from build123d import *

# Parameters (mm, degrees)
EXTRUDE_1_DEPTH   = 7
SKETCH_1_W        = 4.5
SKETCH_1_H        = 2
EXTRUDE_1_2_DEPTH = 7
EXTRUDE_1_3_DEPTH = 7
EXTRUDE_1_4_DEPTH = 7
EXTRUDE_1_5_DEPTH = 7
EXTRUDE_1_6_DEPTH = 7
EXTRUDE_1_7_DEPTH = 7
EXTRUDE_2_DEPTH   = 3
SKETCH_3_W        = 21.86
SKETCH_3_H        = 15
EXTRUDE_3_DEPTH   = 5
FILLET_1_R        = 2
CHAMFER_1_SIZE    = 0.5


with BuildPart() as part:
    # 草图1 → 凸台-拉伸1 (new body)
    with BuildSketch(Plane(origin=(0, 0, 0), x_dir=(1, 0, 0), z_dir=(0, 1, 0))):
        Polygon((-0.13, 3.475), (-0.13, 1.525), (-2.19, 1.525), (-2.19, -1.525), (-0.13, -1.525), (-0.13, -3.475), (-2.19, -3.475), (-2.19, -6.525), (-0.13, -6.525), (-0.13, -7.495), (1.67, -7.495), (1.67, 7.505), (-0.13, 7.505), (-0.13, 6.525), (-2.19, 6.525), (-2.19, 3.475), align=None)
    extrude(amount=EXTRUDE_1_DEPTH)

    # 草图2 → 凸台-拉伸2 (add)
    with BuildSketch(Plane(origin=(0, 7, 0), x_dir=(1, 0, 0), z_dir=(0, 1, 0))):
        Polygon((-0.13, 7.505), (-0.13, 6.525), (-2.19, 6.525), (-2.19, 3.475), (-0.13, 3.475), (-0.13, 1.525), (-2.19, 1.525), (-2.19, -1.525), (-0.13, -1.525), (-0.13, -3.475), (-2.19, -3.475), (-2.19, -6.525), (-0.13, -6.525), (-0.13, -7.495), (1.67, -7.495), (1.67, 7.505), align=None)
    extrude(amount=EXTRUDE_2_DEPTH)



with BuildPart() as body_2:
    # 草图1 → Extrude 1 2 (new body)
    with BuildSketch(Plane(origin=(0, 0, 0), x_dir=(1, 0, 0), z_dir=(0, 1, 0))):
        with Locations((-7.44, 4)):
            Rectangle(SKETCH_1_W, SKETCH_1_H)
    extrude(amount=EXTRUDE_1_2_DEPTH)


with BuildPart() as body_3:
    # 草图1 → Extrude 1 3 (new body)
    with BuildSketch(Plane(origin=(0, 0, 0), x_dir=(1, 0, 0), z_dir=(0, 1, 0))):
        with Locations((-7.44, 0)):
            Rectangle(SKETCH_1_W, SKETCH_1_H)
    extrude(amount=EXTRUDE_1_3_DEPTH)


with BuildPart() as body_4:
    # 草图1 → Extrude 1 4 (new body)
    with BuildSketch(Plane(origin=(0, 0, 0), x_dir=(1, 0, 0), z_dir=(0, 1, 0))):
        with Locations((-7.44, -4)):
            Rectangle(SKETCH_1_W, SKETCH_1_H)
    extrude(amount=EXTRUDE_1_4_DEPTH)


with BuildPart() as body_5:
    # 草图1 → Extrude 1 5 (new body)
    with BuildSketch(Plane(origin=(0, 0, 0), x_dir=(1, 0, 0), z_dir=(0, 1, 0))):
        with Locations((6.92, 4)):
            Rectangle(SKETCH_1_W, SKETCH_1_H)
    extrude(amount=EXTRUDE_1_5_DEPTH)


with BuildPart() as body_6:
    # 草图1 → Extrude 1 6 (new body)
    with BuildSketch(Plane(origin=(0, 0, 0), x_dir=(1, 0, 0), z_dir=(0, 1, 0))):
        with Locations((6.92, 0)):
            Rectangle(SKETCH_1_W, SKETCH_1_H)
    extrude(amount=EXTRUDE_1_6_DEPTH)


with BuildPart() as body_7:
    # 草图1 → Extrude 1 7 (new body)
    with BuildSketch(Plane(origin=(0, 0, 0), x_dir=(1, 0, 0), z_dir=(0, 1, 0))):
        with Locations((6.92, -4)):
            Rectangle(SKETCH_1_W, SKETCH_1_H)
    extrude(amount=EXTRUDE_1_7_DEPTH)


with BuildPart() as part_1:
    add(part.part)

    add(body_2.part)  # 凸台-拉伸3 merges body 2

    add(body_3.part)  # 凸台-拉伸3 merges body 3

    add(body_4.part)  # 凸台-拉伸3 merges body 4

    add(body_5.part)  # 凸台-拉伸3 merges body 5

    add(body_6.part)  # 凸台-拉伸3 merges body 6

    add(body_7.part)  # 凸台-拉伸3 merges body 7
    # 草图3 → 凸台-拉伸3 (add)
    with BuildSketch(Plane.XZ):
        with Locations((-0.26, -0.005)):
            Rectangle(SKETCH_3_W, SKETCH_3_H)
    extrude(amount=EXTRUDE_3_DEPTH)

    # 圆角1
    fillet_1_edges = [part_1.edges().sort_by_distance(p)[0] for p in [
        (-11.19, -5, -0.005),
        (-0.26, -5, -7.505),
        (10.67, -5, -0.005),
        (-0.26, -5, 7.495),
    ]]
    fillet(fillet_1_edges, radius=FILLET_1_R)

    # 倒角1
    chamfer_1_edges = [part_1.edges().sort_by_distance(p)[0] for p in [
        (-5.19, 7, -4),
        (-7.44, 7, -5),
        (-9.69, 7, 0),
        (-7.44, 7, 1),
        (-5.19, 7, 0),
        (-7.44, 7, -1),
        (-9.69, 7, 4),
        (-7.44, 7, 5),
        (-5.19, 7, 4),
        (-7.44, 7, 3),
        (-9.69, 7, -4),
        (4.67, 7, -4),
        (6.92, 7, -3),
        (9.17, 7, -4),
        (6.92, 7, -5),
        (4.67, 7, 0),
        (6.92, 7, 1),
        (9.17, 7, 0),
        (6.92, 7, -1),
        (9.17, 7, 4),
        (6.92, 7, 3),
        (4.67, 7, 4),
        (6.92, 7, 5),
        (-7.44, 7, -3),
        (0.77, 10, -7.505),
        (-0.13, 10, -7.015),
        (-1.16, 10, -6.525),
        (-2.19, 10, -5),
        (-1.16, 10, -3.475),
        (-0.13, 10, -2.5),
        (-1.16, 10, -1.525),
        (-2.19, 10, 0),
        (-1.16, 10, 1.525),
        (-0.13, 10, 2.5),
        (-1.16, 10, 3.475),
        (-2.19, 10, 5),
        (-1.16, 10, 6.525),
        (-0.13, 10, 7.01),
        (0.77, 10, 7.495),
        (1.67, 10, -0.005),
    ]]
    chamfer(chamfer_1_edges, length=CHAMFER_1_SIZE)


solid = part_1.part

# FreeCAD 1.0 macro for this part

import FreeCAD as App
import Part
import Sketcher
from FreeCAD import Vector
Q = App.Units.Quantity


def edges_at(feature, points):
    """Names of the edges that pass closest to the given points."""
    edges = feature.Shape.Edges
    near = lambda p: min(range(len(edges)), key=lambda i: edges[i].distToShape(Part.Vertex(*p))[0])
    return sorted({f"Edge{near(p) + 1}" for p in points})


def add_polygon(sketch, points):
    """Adds a closed chain of lines whose ends are joined by coincident constraints."""
    first, n = sketch.GeometryCount, len(points)
    for a, b in zip(points, points[1:] + points[:1]):
        sketch.addGeometry(Part.LineSegment(App.Vector(*a, 0), App.Vector(*b, 0)), False)
    for i in range(n):
        sketch.addConstraint(Sketcher.Constraint("Coincident", first + i, 2, first + (i + 1) % n, 1))

doc = App.newDocument("Part")
params = doc.addObject("Spreadsheet::Sheet", "Params")
for row, (alias, value) in enumerate([
    ("sketch1_height", "15 mm"),
    ("sketch1_width", "1.8 mm"),
    ("sketch1_width2", "2.06 mm"),
    ("sketch1_height2", "1.95 mm"),
    ("sketch1_height3", "0.97 mm"),
    ("pad1_length", "7 mm"),
    ("sketch2_height", "15 mm"),
    ("sketch2_width", "1.8 mm"),
    ("sketch2_width2", "2.06 mm"),
    ("sketch2_height2", "0.98 mm"),
    ("sketch2_height3", "3.05 mm"),
    ("pad2_length", "3 mm"),
    ("sketch3_height", "2 mm"),
    ("sketch3_width", "4.5 mm"),
    ("pad3_length", "7 mm"),
    ("sketch4_height", "2 mm"),
    ("sketch4_width", "4.5 mm"),
    ("pad4_length", "7 mm"),
    ("sketch5_height", "2 mm"),
    ("sketch5_width", "4.5 mm"),
    ("pad5_length", "7 mm"),
    ("sketch6_height", "2 mm"),
    ("sketch6_width", "4.5 mm"),
    ("pad6_length", "7 mm"),
    ("sketch7_height", "2 mm"),
    ("sketch7_width", "4.5 mm"),
    ("pad7_length", "7 mm"),
    ("sketch8_height", "2 mm"),
    ("sketch8_width", "4.5 mm"),
    ("pad8_length", "7 mm"),
    ("sketch9_height", "15 mm"),
    ("sketch9_width", "21.86 mm"),
    ("pad9_length", "5 mm"),
    ("fillet_radius", "2 mm"),
    ("chamfer_size", "0.5 mm"),
], start=1):
    params.set(f"A{row}", alias)
    params.set(f"B{row}", "=" + value)
    params.setAlias(f"B{row}", alias)

body = doc.addObject("PartDesign::Body", "Body")

# Sketch on XZ plane
sketch1 = doc.addObject("Sketcher::SketchObject", "Sketch")
body.addObject(sketch1)
sketch1.AttachmentSupport = (doc.XZ_Plane, [""])
sketch1.MapMode = "FlatFace"
add_polygon(sketch1, [(-0.1, -3.5), (-0.1, -1.5), (-2.2, -1.5), (-2.2, 1.5), (-0.1, 1.5), (-0.1, 3.5), (-2.2, 3.5), (-2.2, 6.5), (-0.1, 6.5), (-0.1, 7.5), (1.7, 7.5), (1.7, -7.5), (-0.1, -7.5), (-0.1, -6.5), (-2.2, -6.5), (-2.2, -3.5)])  # lines 0-15
sketch1.addConstraint([
    Sketcher.Constraint("Vertical", 0),
    Sketcher.Constraint("Horizontal", 1),
    Sketcher.Constraint("Vertical", 2),
    Sketcher.Constraint("Horizontal", 3),
    Sketcher.Constraint("Vertical", 4),
    Sketcher.Constraint("Horizontal", 5),
    Sketcher.Constraint("Vertical", 6),
    Sketcher.Constraint("Horizontal", 7),
    Sketcher.Constraint("Vertical", 8),
    Sketcher.Constraint("Horizontal", 9),
    Sketcher.Constraint("Vertical", 10),
    Sketcher.Constraint("Horizontal", 11),
    Sketcher.Constraint("Vertical", 12),
    Sketcher.Constraint("Horizontal", 13),
    Sketcher.Constraint("Vertical", 14),
    Sketcher.Constraint("Horizontal", 15),
    Sketcher.Constraint("Symmetric", 0, 2, 3, 2, -1),
    Sketcher.Constraint("Symmetric", 7, 2, 12, 2, -1),
    Sketcher.Constraint("Symmetric", 5, 2, 14, 2, -1),
    Sketcher.Constraint("Vertical", 2, 2, 5, 2),
    Sketcher.Constraint("Vertical", 4, 2, 7, 2),
    Sketcher.Constraint("Equal", 2, 6),
    Sketcher.Constraint("DistanceY", 10, 2, 10, 1, Q("15 mm")),
    Sketcher.Constraint("DistanceX", 9, 1, 9, 2, Q("1.8 mm")),
    Sketcher.Constraint("DistanceY", 0, 2, 4, 2, Q("5 mm")),
    Sketcher.Constraint("DistanceX", 1, 2, 1, 1, Q("2.06 mm")),
    Sketcher.Constraint("DistanceY", 0, 1, 0, 2, Q("1.95 mm")),
    Sketcher.Constraint("DistanceY", 8, 1, 8, 2, Q("0.97 mm")),
    Sketcher.Constraint("DistanceX", 0, 2, -1, 1, Q("0.13 mm")),
])
sketch1.setExpression("Constraints[38]", "Params.sketch1_height")
sketch1.setExpression("Constraints[39]", "Params.sketch1_width")
sketch1.setExpression("Constraints[41]", "Params.sketch1_width2")
sketch1.setExpression("Constraints[42]", "Params.sketch1_height2")
sketch1.setExpression("Constraints[43]", "Params.sketch1_height3")
pad1 = doc.addObject("PartDesign::Pad", "Pad")
body.addObject(pad1)
pad1.Profile = sketch1
pad1.setExpression("Length", "Params.pad1_length")
pad1.Reversed = True

# Sketch on XZ plane
sketch2 = doc.addObject("Sketcher::SketchObject", "Sketch001")
body.addObject(sketch2)
sketch2.AttachmentSupport = (doc.XZ_Plane, [""])
sketch2.MapMode = "FlatFace"
sketch2.AttachmentOffset = App.Placement(Vector(0, 0, -7), App.Rotation())
add_polygon(sketch2, [(-0.1, -7.5), (-0.1, -6.5), (-2.2, -6.5), (-2.2, -3.5), (-0.1, -3.5), (-0.1, -1.5), (-2.2, -1.5), (-2.2, 1.5), (-0.1, 1.5), (-0.1, 3.5), (-2.2, 3.5), (-2.2, 6.5), (-0.1, 6.5), (-0.1, 7.5), (1.7, 7.5), (1.7, -7.5)])  # lines 0-15
sketch2.addConstraint([
    Sketcher.Constraint("Vertical", 0),
    Sketcher.Constraint("Horizontal", 1),
    Sketcher.Constraint("Vertical", 2),
    Sketcher.Constraint("Horizontal", 3),
    Sketcher.Constraint("Vertical", 4),
    Sketcher.Constraint("Horizontal", 5),
    Sketcher.Constraint("Vertical", 6),
    Sketcher.Constraint("Horizontal", 7),
    Sketcher.Constraint("Vertical", 8),
    Sketcher.Constraint("Horizontal", 9),
    Sketcher.Constraint("Vertical", 10),
    Sketcher.Constraint("Horizontal", 11),
    Sketcher.Constraint("Vertical", 12),
    Sketcher.Constraint("Horizontal", 13),
    Sketcher.Constraint("Vertical", 14),
    Sketcher.Constraint("Horizontal", 15),
    Sketcher.Constraint("Symmetric", 4, 2, 7, 2, -1),
    Sketcher.Constraint("Symmetric", 2, 2, 9, 2, -1),
    Sketcher.Constraint("Symmetric", 0, 2, 11, 2, -1),
    Sketcher.Constraint("Vertical", 0, 2, 3, 2),
    Sketcher.Constraint("Vertical", 2, 2, 5, 2),
    Sketcher.Constraint("Equal", 2, 6),
    Sketcher.Constraint("DistanceY", 14, 2, 14, 1, Q("15 mm")),
    Sketcher.Constraint("DistanceX", 13, 1, 13, 2, Q("1.8 mm")),
    Sketcher.Constraint("DistanceY", 0, 2, 4, 2, Q("5 mm")),
    Sketcher.Constraint("DistanceX", 1, 2, 1, 1, Q("2.06 mm")),
    Sketcher.Constraint("DistanceY", 0, 1, 0, 2, Q("0.98 mm")),
    Sketcher.Constraint("DistanceY", 2, 1, 2, 2, Q("3.05 mm")),
    Sketcher.Constraint("DistanceX", 0, 2, -1, 1, Q("0.13 mm")),
])
sketch2.setExpression("Constraints[38]", "Params.sketch2_height")
sketch2.setExpression("Constraints[39]", "Params.sketch2_width")
sketch2.setExpression("Constraints[41]", "Params.sketch2_width2")
sketch2.setExpression("Constraints[42]", "Params.sketch2_height2")
sketch2.setExpression("Constraints[43]", "Params.sketch2_height3")
pad2 = doc.addObject("PartDesign::Pad", "Pad001")
body.addObject(pad2)
pad2.Profile = sketch2
pad2.setExpression("Length", "Params.pad2_length")
pad2.Reversed = True
body2 = doc.addObject("PartDesign::Body", "Body001")

# Sketch on XZ plane
sketch3 = doc.addObject("Sketcher::SketchObject", "Sketch002")
body2.addObject(sketch3)
sketch3.AttachmentSupport = (doc.getObject("XZ_Plane001"), [""])
sketch3.MapMode = "FlatFace"
add_polygon(sketch3, [(-9.7, -5), (-9.7, -3), (-5.2, -3), (-5.2, -5)])  # lines 0-3
sketch3.addConstraint([
    Sketcher.Constraint("Vertical", 0),
    Sketcher.Constraint("Horizontal", 1),
    Sketcher.Constraint("Vertical", 2),
    Sketcher.Constraint("Horizontal", 3),
    Sketcher.Constraint("DistanceY", 0, 1, 0, 2, Q("2 mm")),
    Sketcher.Constraint("DistanceX", 1, 1, 1, 2, Q("4.5 mm")),
    Sketcher.Constraint("DistanceY", 0, 2, -1, 1, Q("3 mm")),
    Sketcher.Constraint("DistanceX", 0, 2, -1, 1, Q("9.69 mm")),
])
sketch3.setExpression("Constraints[8]", "Params.sketch3_height")
sketch3.setExpression("Constraints[9]", "Params.sketch3_width")
pad3 = doc.addObject("PartDesign::Pad", "Pad002")
body2.addObject(pad3)
pad3.Profile = sketch3
pad3.setExpression("Length", "Params.pad3_length")
pad3.Reversed = True
body3 = doc.addObject("PartDesign::Body", "Body002")

# Sketch on XZ plane
sketch4 = doc.addObject("Sketcher::SketchObject", "Sketch003")
body3.addObject(sketch4)
sketch4.AttachmentSupport = (doc.getObject("XZ_Plane002"), [""])
sketch4.MapMode = "FlatFace"
add_polygon(sketch4, [(-9.7, -1), (-9.7, 1), (-5.2, 1), (-5.2, -1)])  # lines 0-3
sketch4.addConstraint([
    Sketcher.Constraint("Vertical", 0),
    Sketcher.Constraint("Horizontal", 1),
    Sketcher.Constraint("Vertical", 2),
    Sketcher.Constraint("Horizontal", 3),
    Sketcher.Constraint("DistanceY", 0, 1, 0, 2, Q("2 mm")),
    Sketcher.Constraint("DistanceX", 1, 1, 1, 2, Q("4.5 mm")),
    Sketcher.Constraint("DistanceY", -1, 1, 0, 2, Q("1 mm")),
    Sketcher.Constraint("DistanceX", 0, 2, -1, 1, Q("9.69 mm")),
])
sketch4.setExpression("Constraints[8]", "Params.sketch4_height")
sketch4.setExpression("Constraints[9]", "Params.sketch4_width")
pad4 = doc.addObject("PartDesign::Pad", "Pad003")
body3.addObject(pad4)
pad4.Profile = sketch4
pad4.setExpression("Length", "Params.pad4_length")
pad4.Reversed = True
body4 = doc.addObject("PartDesign::Body", "Body003")

# Sketch on XZ plane
sketch5 = doc.addObject("Sketcher::SketchObject", "Sketch004")
body4.addObject(sketch5)
sketch5.AttachmentSupport = (doc.getObject("XZ_Plane003"), [""])
sketch5.MapMode = "FlatFace"
add_polygon(sketch5, [(-9.7, 3), (-9.7, 5), (-5.2, 5), (-5.2, 3)])  # lines 0-3
sketch5.addConstraint([
    Sketcher.Constraint("Vertical", 0),
    Sketcher.Constraint("Horizontal", 1),
    Sketcher.Constraint("Vertical", 2),
    Sketcher.Constraint("Horizontal", 3),
    Sketcher.Constraint("DistanceY", 0, 1, 0, 2, Q("2 mm")),
    Sketcher.Constraint("DistanceX", 1, 1, 1, 2, Q("4.5 mm")),
    Sketcher.Constraint("DistanceY", -1, 1, 0, 2, Q("5 mm")),
    Sketcher.Constraint("DistanceX", 0, 2, -1, 1, Q("9.69 mm")),
])
sketch5.setExpression("Constraints[8]", "Params.sketch5_height")
sketch5.setExpression("Constraints[9]", "Params.sketch5_width")
pad5 = doc.addObject("PartDesign::Pad", "Pad004")
body4.addObject(pad5)
pad5.Profile = sketch5
pad5.setExpression("Length", "Params.pad5_length")
pad5.Reversed = True
body5 = doc.addObject("PartDesign::Body", "Body004")

# Sketch on XZ plane
sketch6 = doc.addObject("Sketcher::SketchObject", "Sketch005")
body5.addObject(sketch6)
sketch6.AttachmentSupport = (doc.getObject("XZ_Plane004"), [""])
sketch6.MapMode = "FlatFace"
add_polygon(sketch6, [(4.7, -5), (4.7, -3), (9.2, -3), (9.2, -5)])  # lines 0-3
sketch6.addConstraint([
    Sketcher.Constraint("Vertical", 0),
    Sketcher.Constraint("Horizontal", 1),
    Sketcher.Constraint("Vertical", 2),
    Sketcher.Constraint("Horizontal", 3),
    Sketcher.Constraint("DistanceY", 0, 1, 0, 2, Q("2 mm")),
    Sketcher.Constraint("DistanceX", 1, 1, 1, 2, Q("4.5 mm")),
    Sketcher.Constraint("DistanceY", 0, 2, -1, 1, Q("3 mm")),
    Sketcher.Constraint("DistanceX", -1, 1, 0, 2, Q("4.67 mm")),
])
sketch6.setExpression("Constraints[8]", "Params.sketch6_height")
sketch6.setExpression("Constraints[9]", "Params.sketch6_width")
pad6 = doc.addObject("PartDesign::Pad", "Pad005")
body5.addObject(pad6)
pad6.Profile = sketch6
pad6.setExpression("Length", "Params.pad6_length")
pad6.Reversed = True
body6 = doc.addObject("PartDesign::Body", "Body005")

# Sketch on XZ plane
sketch7 = doc.addObject("Sketcher::SketchObject", "Sketch006")
body6.addObject(sketch7)
sketch7.AttachmentSupport = (doc.getObject("XZ_Plane005"), [""])
sketch7.MapMode = "FlatFace"
add_polygon(sketch7, [(4.7, -1), (4.7, 1), (9.2, 1), (9.2, -1)])  # lines 0-3
sketch7.addConstraint([
    Sketcher.Constraint("Vertical", 0),
    Sketcher.Constraint("Horizontal", 1),
    Sketcher.Constraint("Vertical", 2),
    Sketcher.Constraint("Horizontal", 3),
    Sketcher.Constraint("DistanceY", 0, 1, 0, 2, Q("2 mm")),
    Sketcher.Constraint("DistanceX", 1, 1, 1, 2, Q("4.5 mm")),
    Sketcher.Constraint("DistanceY", -1, 1, 0, 2, Q("1 mm")),
    Sketcher.Constraint("DistanceX", -1, 1, 0, 2, Q("4.67 mm")),
])
sketch7.setExpression("Constraints[8]", "Params.sketch7_height")
sketch7.setExpression("Constraints[9]", "Params.sketch7_width")
pad7 = doc.addObject("PartDesign::Pad", "Pad006")
body6.addObject(pad7)
pad7.Profile = sketch7
pad7.setExpression("Length", "Params.pad7_length")
pad7.Reversed = True
body7 = doc.addObject("PartDesign::Body", "Body006")

# Sketch on XZ plane
sketch8 = doc.addObject("Sketcher::SketchObject", "Sketch007")
body7.addObject(sketch8)
sketch8.AttachmentSupport = (doc.getObject("XZ_Plane006"), [""])
sketch8.MapMode = "FlatFace"
add_polygon(sketch8, [(4.7, 3), (4.7, 5), (9.2, 5), (9.2, 3)])  # lines 0-3
sketch8.addConstraint([
    Sketcher.Constraint("Vertical", 0),
    Sketcher.Constraint("Horizontal", 1),
    Sketcher.Constraint("Vertical", 2),
    Sketcher.Constraint("Horizontal", 3),
    Sketcher.Constraint("DistanceY", 0, 1, 0, 2, Q("2 mm")),
    Sketcher.Constraint("DistanceX", 1, 1, 1, 2, Q("4.5 mm")),
    Sketcher.Constraint("DistanceY", -1, 1, 0, 2, Q("5 mm")),
    Sketcher.Constraint("DistanceX", -1, 1, 0, 2, Q("4.67 mm")),
])
sketch8.setExpression("Constraints[8]", "Params.sketch8_height")
sketch8.setExpression("Constraints[9]", "Params.sketch8_width")
pad8 = doc.addObject("PartDesign::Pad", "Pad007")
body7.addObject(pad8)
pad8.Profile = sketch8
pad8.setExpression("Length", "Params.pad8_length")
pad8.Reversed = True
body.AllowCompound = True
doc.recompute()

boolean = doc.addObject("PartDesign::Boolean", "Boolean")
body.addObject(boolean)
boolean.Type = "Fuse"
boolean.addObjects([body2])
doc.recompute()

boolean2 = doc.addObject("PartDesign::Boolean", "Boolean001")
body.addObject(boolean2)
boolean2.Type = "Fuse"
boolean2.addObjects([body3])
doc.recompute()

boolean3 = doc.addObject("PartDesign::Boolean", "Boolean002")
body.addObject(boolean3)
boolean3.Type = "Fuse"
boolean3.addObjects([body4])
doc.recompute()

boolean4 = doc.addObject("PartDesign::Boolean", "Boolean003")
body.addObject(boolean4)
boolean4.Type = "Fuse"
boolean4.addObjects([body5])
doc.recompute()

boolean5 = doc.addObject("PartDesign::Boolean", "Boolean004")
body.addObject(boolean5)
boolean5.Type = "Fuse"
boolean5.addObjects([body6])
doc.recompute()

boolean6 = doc.addObject("PartDesign::Boolean", "Boolean005")
body.addObject(boolean6)
boolean6.Type = "Fuse"
boolean6.addObjects([body7])

# Sketch on XZ plane
sketch9 = doc.addObject("Sketcher::SketchObject", "Sketch008")
body.addObject(sketch9)
sketch9.AttachmentSupport = (doc.XZ_Plane, [""])
sketch9.MapMode = "FlatFace"
add_polygon(sketch9, [(-11, 7), (-11, -8), (11, -8), (11, 7)])  # lines 0-3
sketch9.addConstraint([
    Sketcher.Constraint("Vertical", 0),
    Sketcher.Constraint("Horizontal", 1),
    Sketcher.Constraint("Vertical", 2),
    Sketcher.Constraint("Horizontal", 3),
    Sketcher.Constraint("DistanceY", 0, 2, 0, 1, Q("15 mm")),
    Sketcher.Constraint("DistanceX", 1, 1, 1, 2, Q("21.86 mm")),
    Sketcher.Constraint("DistanceX", 0, 2, -1, 1, Q("11.19 mm")),
    Sketcher.Constraint("DistanceY", 0, 2, -1, 1, Q("7.505 mm")),
])
sketch9.setExpression("Constraints[8]", "Params.sketch9_height")
sketch9.setExpression("Constraints[9]", "Params.sketch9_width")
pad9 = doc.addObject("PartDesign::Pad", "Pad008")
body.addObject(pad9)
pad9.Profile = sketch9
pad9.setExpression("Length", "Params.pad9_length")
doc.recompute()

fillet = doc.addObject("PartDesign::Fillet", "Fillet")
body.addObject(fillet)
fillet.Base = (pad9, edges_at(pad9, [
    (-11.19, -5, -0.005),
    (-0.26, -5, -7.505),
    (10.67, -5, -0.005),
    (-0.26, -5, 7.495),
]))
fillet.setExpression("Radius", "Params.fillet_radius")
doc.recompute()

chamfer = doc.addObject("PartDesign::Chamfer", "Chamfer")
body.addObject(chamfer)
chamfer.Base = (fillet, edges_at(fillet, [
    (-5.19, 7, -4),
    (-7.44, 7, -5),
    (-9.69, 7, 0),
    (-7.44, 7, 1),
    (-5.19, 7, 0),
    (-7.44, 7, -1),
    (-9.69, 7, 4),
    (-7.44, 7, 5),
    (-5.19, 7, 4),
    (-7.44, 7, 3),
    (-9.69, 7, -4),
    (4.67, 7, -4),
    (6.92, 7, -3),
    (9.17, 7, -4),
    (6.92, 7, -5),
    (4.67, 7, 0),
    (6.92, 7, 1),
    (9.17, 7, 0),
    (6.92, 7, -1),
    (9.17, 7, 4),
    (6.92, 7, 3),
    (4.67, 7, 4),
    (6.92, 7, 5),
    (-7.44, 7, -3),
    (0.77, 10, -7.505),
    (-0.13, 10, -7.015),
    (-1.16, 10, -6.525),
    (-2.19, 10, -5),
    (-1.16, 10, -3.475),
    (-0.13, 10, -2.5),
    (-1.16, 10, -1.525),
    (-2.19, 10, 0),
    (-1.16, 10, 1.525),
    (-0.13, 10, 2.5),
    (-1.16, 10, 3.475),
    (-2.19, 10, 5),
    (-1.16, 10, 6.525),
    (-0.13, 10, 7.01),
    (0.77, 10, 7.495),
    (1.67, 10, -0.005),
]))
chamfer.setExpression("Size", "Params.chamfer_size")

doc.recompute()
